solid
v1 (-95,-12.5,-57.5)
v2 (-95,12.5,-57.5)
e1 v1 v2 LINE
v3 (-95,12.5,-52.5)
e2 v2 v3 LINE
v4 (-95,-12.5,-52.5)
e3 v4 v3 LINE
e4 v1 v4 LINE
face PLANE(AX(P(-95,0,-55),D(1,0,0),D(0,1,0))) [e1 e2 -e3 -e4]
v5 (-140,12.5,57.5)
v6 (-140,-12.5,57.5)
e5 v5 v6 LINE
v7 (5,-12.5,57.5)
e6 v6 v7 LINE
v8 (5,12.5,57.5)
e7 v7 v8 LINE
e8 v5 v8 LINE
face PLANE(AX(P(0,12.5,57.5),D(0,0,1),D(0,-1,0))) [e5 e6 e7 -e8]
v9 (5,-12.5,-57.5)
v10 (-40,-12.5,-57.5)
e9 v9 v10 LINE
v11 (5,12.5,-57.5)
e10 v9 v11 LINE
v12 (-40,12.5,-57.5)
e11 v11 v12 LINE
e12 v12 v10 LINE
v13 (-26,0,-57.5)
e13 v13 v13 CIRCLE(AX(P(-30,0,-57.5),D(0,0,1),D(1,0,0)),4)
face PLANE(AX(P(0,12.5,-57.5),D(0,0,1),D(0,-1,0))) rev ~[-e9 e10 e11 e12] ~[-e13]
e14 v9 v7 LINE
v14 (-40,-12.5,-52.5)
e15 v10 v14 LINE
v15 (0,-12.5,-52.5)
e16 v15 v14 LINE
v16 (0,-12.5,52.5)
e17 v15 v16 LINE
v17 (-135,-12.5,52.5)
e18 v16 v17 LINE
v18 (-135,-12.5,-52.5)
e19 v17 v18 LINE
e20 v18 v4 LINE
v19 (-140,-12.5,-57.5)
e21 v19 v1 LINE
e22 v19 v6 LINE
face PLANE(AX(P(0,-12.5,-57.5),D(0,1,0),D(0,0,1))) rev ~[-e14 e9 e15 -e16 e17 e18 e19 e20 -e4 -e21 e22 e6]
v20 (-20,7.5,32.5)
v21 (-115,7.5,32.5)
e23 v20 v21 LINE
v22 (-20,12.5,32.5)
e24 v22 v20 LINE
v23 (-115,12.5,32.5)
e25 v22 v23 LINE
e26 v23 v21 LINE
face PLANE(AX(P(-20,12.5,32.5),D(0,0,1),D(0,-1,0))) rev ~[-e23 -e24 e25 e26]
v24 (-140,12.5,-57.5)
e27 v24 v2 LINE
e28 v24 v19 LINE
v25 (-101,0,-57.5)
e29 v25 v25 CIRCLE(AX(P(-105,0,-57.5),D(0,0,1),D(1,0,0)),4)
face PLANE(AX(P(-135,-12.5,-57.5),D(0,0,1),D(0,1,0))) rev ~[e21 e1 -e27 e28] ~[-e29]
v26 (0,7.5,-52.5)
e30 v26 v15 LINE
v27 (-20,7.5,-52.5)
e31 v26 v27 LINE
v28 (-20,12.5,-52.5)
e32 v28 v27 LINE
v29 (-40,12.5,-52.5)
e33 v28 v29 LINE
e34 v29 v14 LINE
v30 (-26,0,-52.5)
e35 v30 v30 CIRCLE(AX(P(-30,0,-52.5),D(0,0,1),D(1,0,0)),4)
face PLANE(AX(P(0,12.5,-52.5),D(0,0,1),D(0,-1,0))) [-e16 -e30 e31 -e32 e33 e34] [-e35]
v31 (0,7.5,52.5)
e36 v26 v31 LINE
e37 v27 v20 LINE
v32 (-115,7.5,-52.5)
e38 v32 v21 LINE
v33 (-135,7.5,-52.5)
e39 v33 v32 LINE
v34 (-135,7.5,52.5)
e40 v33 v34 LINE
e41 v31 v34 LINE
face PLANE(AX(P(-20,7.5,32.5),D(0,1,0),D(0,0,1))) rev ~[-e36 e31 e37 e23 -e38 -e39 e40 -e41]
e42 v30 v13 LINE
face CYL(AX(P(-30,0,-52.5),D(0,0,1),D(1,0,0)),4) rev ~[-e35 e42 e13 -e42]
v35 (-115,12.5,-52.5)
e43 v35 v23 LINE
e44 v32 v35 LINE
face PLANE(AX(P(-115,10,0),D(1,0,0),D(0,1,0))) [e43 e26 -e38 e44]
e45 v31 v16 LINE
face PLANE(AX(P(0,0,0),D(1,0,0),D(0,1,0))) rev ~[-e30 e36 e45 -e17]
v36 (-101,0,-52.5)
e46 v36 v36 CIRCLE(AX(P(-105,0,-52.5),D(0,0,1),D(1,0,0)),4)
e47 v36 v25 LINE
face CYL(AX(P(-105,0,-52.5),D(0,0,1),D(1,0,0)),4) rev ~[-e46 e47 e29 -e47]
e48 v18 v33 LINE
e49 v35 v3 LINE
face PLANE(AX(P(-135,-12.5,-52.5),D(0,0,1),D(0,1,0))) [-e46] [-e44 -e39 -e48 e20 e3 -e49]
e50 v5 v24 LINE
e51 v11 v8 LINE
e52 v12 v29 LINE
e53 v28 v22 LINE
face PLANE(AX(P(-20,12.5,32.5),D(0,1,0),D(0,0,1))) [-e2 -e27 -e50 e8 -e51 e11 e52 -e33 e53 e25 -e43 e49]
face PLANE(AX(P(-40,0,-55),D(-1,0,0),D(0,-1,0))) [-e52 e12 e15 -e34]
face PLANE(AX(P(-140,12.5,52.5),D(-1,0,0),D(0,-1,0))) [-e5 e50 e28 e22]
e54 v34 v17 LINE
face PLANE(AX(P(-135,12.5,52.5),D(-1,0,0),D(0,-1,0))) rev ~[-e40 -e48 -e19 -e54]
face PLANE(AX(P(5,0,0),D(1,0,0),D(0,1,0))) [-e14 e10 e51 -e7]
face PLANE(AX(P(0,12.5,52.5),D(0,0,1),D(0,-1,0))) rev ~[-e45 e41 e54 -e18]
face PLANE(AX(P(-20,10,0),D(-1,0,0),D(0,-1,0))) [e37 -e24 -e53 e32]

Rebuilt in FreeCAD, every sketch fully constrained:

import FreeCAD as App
import Part
import Sketcher


def add_polygon(sketch, points):
    """Adds a closed chain of lines whose ends are joined by coincident constraints."""
    first, n = sketch.GeometryCount, len(points)
    for a, b in zip(points, points[1:] + points[:1]):
        sketch.addGeometry(Part.LineSegment(App.Vector(*a, 0), App.Vector(*b, 0)), False)
    for i in range(n):
        sketch.addConstraint(Sketcher.Constraint("Coincident", first + i, 2, first + (i + 1) % n, 1))

doc = App.newDocument("Part")
body = doc.addObject("PartDesign::Body", "Body")

# Sketch on YZ plane
sketch1 = body.newObject("Sketcher::SketchObject", "Sketch")
sketch1.AttachmentSupport = (doc.getObject("YZ_Plane"), [""])
sketch1.MapMode = "FlatFace"
add_polygon(sketch1, [(-12, 58), (-12, -58), (12, -58), (12, 58)])  # lines 0-3
sketch1.addConstraint([
    Sketcher.Constraint("Vertical", 0),
    Sketcher.Constraint("Horizontal", 1),
    Sketcher.Constraint("Vertical", 2),
    Sketcher.Constraint("Horizontal", 3),
    Sketcher.Constraint("Symmetric", 0, 2, 2, 2, -1, 1),
    Sketcher.Constraint("DistanceX", 1, 1, 1, 2, 25.0),
    Sketcher.Constraint("DistanceY", 0, 2, 0, 1, 115.0),
])
pad1 = body.newObject("PartDesign::Pad", "Pad")
pad1.Profile = sketch1
pad1.Length = 5

# Sketch on YZ plane
sketch2 = body.newObject("Sketcher::SketchObject", "Sketch001")
sketch2.AttachmentSupport = (doc.getObject("YZ_Plane"), [""])
sketch2.MapMode = "FlatFace"
add_polygon(sketch2, [(12, 58), (12, 52), (-12, 52), (-12, 58)])  # lines 0-3
sketch2.addConstraint([
    Sketcher.Constraint("Vertical", 0),
    Sketcher.Constraint("Horizontal", 1),
    Sketcher.Constraint("Vertical", 2),
    Sketcher.Constraint("Horizontal", 3),
    Sketcher.Constraint("DistanceX", 1, 2, 1, 1, 25.0),
    Sketcher.Constraint("DistanceY", 0, 2, 0, 1, 5.0),
    Sketcher.Constraint("DistanceX", -1, 1, 0, 2, 12.5),
    Sketcher.Constraint("DistanceY", -1, 1, 0, 2, 52.5),
])
pad2 = body.newObject("PartDesign::Pad", "Pad001")
pad2.Profile = sketch2
pad2.Length = 140
pad2.Reversed = True

# Sketch on XY plane
sketch3 = body.newObject("Sketcher::SketchObject", "Sketch002")
sketch3.AttachmentSupport = (doc.getObject("XY_Plane"), [""])
sketch3.MapMode = "FlatFace"
sketch3.AttachmentOffset = App.Placement(App.Vector(0, 0, 52.5), App.Rotation())
add_polygon(sketch3, [(-140, -12), (-140, 12), (-135, 12), (-135, -12)])  # lines 0-3
sketch3.addConstraint([
    Sketcher.Constraint("Vertical", 0),
    Sketcher.Constraint("Horizontal", 1),
    Sketcher.Constraint("Vertical", 2),
    Sketcher.Constraint("Horizontal", 3),
    Sketcher.Constraint("DistanceX", 1, 1, 1, 2, 5.0),
    Sketcher.Constraint("DistanceY", 0, 1, 0, 2, 25.0),
    Sketcher.Constraint("DistanceX", 0, 2, -1, 1, 140.0),
    Sketcher.Constraint("DistanceY", -1, 1, 0, 2, 12.5),
])
pad3 = body.newObject("PartDesign::Pad", "Pad002")
pad3.Profile = sketch3
pad3.Length = 110
pad3.Reversed = True

# Sketch on YZ plane
sketch4 = body.newObject("Sketcher::SketchObject", "Sketch003")
sketch4.AttachmentSupport = (doc.getObject("YZ_Plane"), [""])
sketch4.MapMode = "FlatFace"
sketch4.AttachmentOffset = App.Placement(App.Vector(0, 0, -135), App.Rotation())
add_polygon(sketch4, [(-12, -52), (-12, -58), (12, -58), (12, -52)])  # lines 0-3
sketch4.addConstraint([
    Sketcher.Constraint("Vertical", 0),
    Sketcher.Constraint("Horizontal", 1),
    Sketcher.Constraint("Vertical", 2),
    Sketcher.Constraint("Horizontal", 3),
    Sketcher.Constraint("DistanceX", 1, 1, 1, 2, 25.0),
    Sketcher.Constraint("DistanceY", 0, 2, 0, 1, 5.0),
    Sketcher.Constraint("DistanceX", 0, 2, -1, 1, 12.5),
    Sketcher.Constraint("DistanceY", 0, 2, -1, 1, 57.5),
])
pad4 = body.newObject("PartDesign::Pad", "Pad003")
pad4.Profile = sketch4
pad4.Length = 40

# Sketch on YZ plane
sketch5 = body.newObject("Sketcher::SketchObject", "Sketch004")
sketch5.AttachmentSupport = (doc.getObject("YZ_Plane"), [""])
sketch5.MapMode = "FlatFace"
add_polygon(sketch5, [(12, -52), (12, -58), (-12, -58), (-12, -52)])  # lines 0-3
sketch5.addConstraint([
    Sketcher.Constraint("Vertical", 0),
    Sketcher.Constraint("Horizontal", 1),
    Sketcher.Constraint("Vertical", 2),
    Sketcher.Constraint("Horizontal", 3),
    Sketcher.Constraint("DistanceX", 1, 2, 1, 1, 25.0),
    Sketcher.Constraint("DistanceY", 0, 2, 0, 1, 5.0),
    Sketcher.Constraint("DistanceX", -1, 1, 0, 2, 12.5),
    Sketcher.Constraint("DistanceY", 0, 2, -1, 1, 57.5),
])
pad5 = body.newObject("PartDesign::Pad", "Pad004")
pad5.Profile = sketch5
pad5.Length = 40
pad5.Reversed = True

# Sketch on YZ plane
sketch6 = body.newObject("Sketcher::SketchObject", "Sketch005")
sketch6.AttachmentSupport = (doc.getObject("YZ_Plane"), [""])
sketch6.MapMode = "FlatFace"
sketch6.AttachmentOffset = App.Placement(App.Vector(0, 0, -135), App.Rotation())
add_polygon(sketch6, [(8, 52), (8, -52), (12, -52), (12, 52)])  # lines 0-3
sketch6.addConstraint([
    Sketcher.Constraint("Vertical", 0),
    Sketcher.Constraint("Horizontal", 1),
    Sketcher.Constraint("Vertical", 2),
    Sketcher.Constraint("Horizontal", 3),
    Sketcher.Constraint("DistanceX", 1, 1, 1, 2, 5.0),
    Sketcher.Constraint("DistanceY", 0, 2, 0, 1, 105.0),
    Sketcher.Constraint("DistanceX", -1, 1, 0, 2, 7.5),
    Sketcher.Constraint("DistanceY", 0, 2, -1, 1, 52.5),
])
pad6 = body.newObject("PartDesign::Pad", "Pad005")
pad6.Profile = sketch6
pad6.Length = 20

# Sketch on YZ plane
sketch7 = body.newObject("Sketcher::SketchObject", "Sketch006")
sketch7.AttachmentSupport = (doc.getObject("YZ_Plane"), [""])
sketch7.MapMode = "FlatFace"
add_polygon(sketch7, [(12, 52), (12, -52), (8, -52), (8, 52)])  # lines 0-3
sketch7.addConstraint([
    Sketcher.Constraint("Vertical", 0),
    Sketcher.Constraint("Horizontal", 1),
    Sketcher.Constraint("Vertical", 2),
    Sketcher.Constraint("Horizontal", 3),
    Sketcher.Constraint("DistanceX", 1, 2, 1, 1, 5.0),
    Sketcher.Constraint("DistanceY", 0, 2, 0, 1, 105.0),
    Sketcher.Constraint("DistanceX", -1, 1, 0, 2, 12.5),
    Sketcher.Constraint("DistanceY", 0, 2, -1, 1, 52.5),
])
pad7 = body.newObject("PartDesign::Pad", "Pad006")
pad7.Profile = sketch7
pad7.Length = 20
pad7.Reversed = True

# Sketch on YZ plane
sketch8 = body.newObject("Sketcher::SketchObject", "Sketch007")
sketch8.AttachmentSupport = (doc.getObject("YZ_Plane"), [""])
sketch8.MapMode = "FlatFace"
sketch8.AttachmentOffset = App.Placement(App.Vector(0, 0, -20), App.Rotation())
add_polygon(sketch8, [(12, 52), (12, 32), (8, 32), (8, 52)])  # lines 0-3
sketch8.addConstraint([
    Sketcher.Constraint("Vertical", 0),
    Sketcher.Constraint("Horizontal", 1),
    Sketcher.Constraint("Vertical", 2),
    Sketcher.Constraint("Horizontal", 3),
    Sketcher.Constraint("DistanceX", 1, 2, 1, 1, 5.0),
    Sketcher.Constraint("DistanceY", 0, 2, 0, 1, 20.0),
    Sketcher.Constraint("DistanceX", -1, 1, 0, 2, 12.5),
    Sketcher.Constraint("DistanceY", -1, 1, 0, 2, 32.5),
])
pad8 = body.newObject("PartDesign::Pad", "Pad007")
pad8.Profile = sketch8
pad8.Length = 97.6
pad8.Reversed = True

# Sketch on XY plane
sketch9 = body.newObject("Sketcher::SketchObject", "Sketch008")
sketch9.AttachmentSupport = (doc.getObject("XY_Plane"), [""])
sketch9.MapMode = "FlatFace"
sketch9.AttachmentOffset = App.Placement(App.Vector(0, 0, -52.5), App.Rotation())
sketch9.addGeometry(Part.Circle(App.Vector(-105, 0, 0), App.Vector(0, 0, 1), 4), False)
sketch9.addConstraint([
    Sketcher.Constraint("PointOnObject", 0, 3, -1),
    Sketcher.Constraint("Diameter", 0, 8.0),
    Sketcher.Constraint("DistanceX", 0, 3, -1, 1, 105.0),
])
pocket1 = body.newObject("PartDesign::Pocket", "Pocket")
pocket1.Profile = sketch9
pocket1.Length = 25

# Sketch on XY plane
sketch10 = body.newObject("Sketcher::SketchObject", "Sketch009")
sketch10.AttachmentSupport = (doc.getObject("XY_Plane"), [""])
sketch10.MapMode = "FlatFace"
sketch10.AttachmentOffset = App.Placement(App.Vector(0, 0, -52.5), App.Rotation())
sketch10.addGeometry(Part.Circle(App.Vector(-30, 0, 0), App.Vector(0, 0, 1), 4), False)
sketch10.addConstraint([
    Sketcher.Constraint("PointOnObject", 0, 3, -1),
    Sketcher.Constraint("Diameter", 0, 8.0),
    Sketcher.Constraint("DistanceX", 0, 3, -1, 1, 30.0),
])
pocket2 = body.newObject("PartDesign::Pocket", "Pocket001")
pocket2.Profile = sketch10
pocket2.Length = 15

# Sketch on XY plane
sketch11 = body.newObject("Sketcher::SketchObject", "Sketch010")
sketch11.AttachmentSupport = (doc.getObject("XY_Plane"), [""])
sketch11.MapMode = "FlatFace"
sketch11.AttachmentOffset = App.Placement(App.Vector(0, 0, -52.5), App.Rotation())
sketch11.addGeometry(Part.Circle(App.Vector(-105, 0, 0), App.Vector(0, 0, 1), 4), False)
sketch11.addConstraint([
    Sketcher.Constraint("PointOnObject", 0, 3, -1),
    Sketcher.Constraint("Diameter", 0, 8.0),
    Sketcher.Constraint("DistanceX", 0, 3, -1, 1, 105.0),
])
pocket3 = body.newObject("PartDesign::Pocket", "Pocket002")
pocket3.Profile = sketch11
pocket3.Length = 25

# Sketch on XY plane
sketch12 = body.newObject("Sketcher::SketchObject", "Sketch011")
sketch12.AttachmentSupport = (doc.getObject("XY_Plane"), [""])
sketch12.MapMode = "FlatFace"
sketch12.AttachmentOffset = App.Placement(App.Vector(0, 0, -52.5), App.Rotation())
sketch12.addGeometry(Part.Circle(App.Vector(-30, 0, 0), App.Vector(0, 0, 1), 4), False)
sketch12.addConstraint([
    Sketcher.Constraint("PointOnObject", 0, 3, -1),
    Sketcher.Constraint("Diameter", 0, 8.0),
    Sketcher.Constraint("DistanceX", 0, 3, -1, 1, 30.0),
])
pocket4 = body.newObject("PartDesign::Pocket", "Pocket003")
pocket4.Profile = sketch12
pocket4.Length = 25

doc.recompute()
